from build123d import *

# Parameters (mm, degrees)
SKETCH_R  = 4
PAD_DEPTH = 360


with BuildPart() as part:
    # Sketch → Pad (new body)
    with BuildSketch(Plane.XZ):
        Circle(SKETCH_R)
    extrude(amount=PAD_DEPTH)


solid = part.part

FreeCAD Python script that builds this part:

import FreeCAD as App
import Part
import Sketcher
Q = App.Units.Quantity

doc = App.newDocument("Part")
params = doc.addObject("Spreadsheet::Sheet", "Params")
for row, (alias, value) in enumerate([
    ("sketch1_diameter", "8 mm"),
    ("pad1_length", "360 mm"),
], start=1):
    params.set(f"A{row}", alias)
    params.set(f"B{row}", "=" + value)
    params.setAlias(f"B{row}", alias)

body = doc.addObject("PartDesign::Body", "Body")

# Sketch on XZ plane
sketch1 = body.newObject("Sketcher::SketchObject", "Sketch")
sketch1.AttachmentSupport = (doc.getObject("XZ_Plane"), [""])
sketch1.MapMode = "FlatFace"
sketch1.addGeometry(Part.Circle(App.Vector(0, 0, 0), App.Vector(0, 0, 1), 4), False)
sketch1.addConstraint([
    Sketcher.Constraint("Coincident", 0, 3, -1, 1),
    Sketcher.Constraint("Diameter", 0, Q("8 mm")),
])
sketch1.setExpression("Constraints[1]", "Params.sketch1_diameter")
pad1 = body.newObject("PartDesign::Pad", "Pad")
pad1.Profile = sketch1
pad1.setExpression("Length", "Params.pad1_length")

doc.recompute()
